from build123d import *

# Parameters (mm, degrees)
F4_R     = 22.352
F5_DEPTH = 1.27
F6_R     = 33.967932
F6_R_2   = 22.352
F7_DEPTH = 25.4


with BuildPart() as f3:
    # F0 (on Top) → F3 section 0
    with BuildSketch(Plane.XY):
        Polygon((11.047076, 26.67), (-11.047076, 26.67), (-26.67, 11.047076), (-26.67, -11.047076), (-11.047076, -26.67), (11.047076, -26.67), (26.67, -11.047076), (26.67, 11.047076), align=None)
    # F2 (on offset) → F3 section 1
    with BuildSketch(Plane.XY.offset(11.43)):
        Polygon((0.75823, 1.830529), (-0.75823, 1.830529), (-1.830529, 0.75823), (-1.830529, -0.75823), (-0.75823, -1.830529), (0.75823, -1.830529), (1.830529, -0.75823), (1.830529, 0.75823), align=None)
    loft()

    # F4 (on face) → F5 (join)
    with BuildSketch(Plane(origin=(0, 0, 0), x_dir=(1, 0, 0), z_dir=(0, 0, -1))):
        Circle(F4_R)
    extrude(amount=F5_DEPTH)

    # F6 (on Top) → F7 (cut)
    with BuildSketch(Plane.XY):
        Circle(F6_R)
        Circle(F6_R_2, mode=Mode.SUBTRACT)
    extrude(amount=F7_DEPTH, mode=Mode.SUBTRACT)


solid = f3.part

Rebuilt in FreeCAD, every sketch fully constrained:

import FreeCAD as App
import Part
import Sketcher
Q = App.Units.Quantity


def add_polygon(sketch, points):
    """Adds a closed chain of lines whose ends are joined by coincident constraints."""
    first, n = sketch.GeometryCount, len(points)
    for a, b in zip(points, points[1:] + points[:1]):
        sketch.addGeometry(Part.LineSegment(App.Vector(*a, 0), App.Vector(*b, 0)), False)
    for i in range(n):
        sketch.addConstraint(Sketcher.Constraint("Coincident", first + i, 2, first + (i + 1) % n, 1))

doc = App.newDocument("Part")
body = doc.addObject("PartDesign::Body", "Body")

sketch1 = body.newObject("Sketcher::SketchObject", "Sketch")
sketch1.AttachmentSupport = (doc.getObject("XY_Plane"), [""])
sketch1.MapMode = "FlatFace"
add_polygon(sketch1, [(11.047076, 26.67), (-11.047076, 26.67), (-26.67, 11.047076), (-26.67, -11.047076), (-11.047076, -26.67), (11.047076, -26.67), (26.67, -11.047076), (26.67, 11.047076)])
sketch1.addConstraint(Sketcher.Constraint("Horizontal", 0))
sketch1.addConstraint(Sketcher.Constraint("Vertical", 2))
sketch1.addConstraint(Sketcher.Constraint("Horizontal", 4))
sketch1.addConstraint(Sketcher.Constraint("Vertical", 6))
sketch1.addConstraint(Sketcher.Constraint("Symmetric", 0, 2, 4, 2, -1, 1))
sketch1.addConstraint(Sketcher.Constraint("Symmetric", 1, 2, 5, 2, -1, 1))
sketch1.addConstraint(Sketcher.Constraint("Perpendicular", 1, 3))
sketch1.addConstraint(Sketcher.Constraint("Perpendicular", 5, 7))
sketch1.addConstraint(Sketcher.Constraint("Horizontal", 2, 2, 5, 2))
sketch1.addConstraint(Sketcher.Constraint("Horizontal", 1, 2, 6, 2))
sketch1.addConstraint(Sketcher.Constraint("Vertical", 0, 2, 3, 2))
sketch1.addConstraint(Sketcher.Constraint("Equal", 4, 2))
sketch1.addConstraint(Sketcher.Constraint("DistanceY", 3, 2, 0, 2, Q("2.1 in")))
sketch1.addConstraint(Sketcher.Constraint("Distance", 1, Q("22.094151 mm")))

sketch2 = body.newObject("Sketcher::SketchObject", "Sketch001")
sketch2.AttachmentSupport = (doc.getObject("XY_Plane"), [""])
sketch2.MapMode = "FlatFace"
sketch2.AttachmentOffset = App.Placement(App.Vector(0, 0, 0.45 * 25.4), App.Rotation())
add_polygon(sketch2, [(0.75823, 1.830529), (-0.75823, 1.830529), (-1.830529, 0.75823), (-1.830529, -0.75823), (-0.75823, -1.830529), (0.75823, -1.830529), (1.830529, -0.75823), (1.830529, 0.75823)])
sketch2.addConstraint(Sketcher.Constraint("Horizontal", 0))
sketch2.addConstraint(Sketcher.Constraint("Vertical", 2))
sketch2.addConstraint(Sketcher.Constraint("Horizontal", 4))
sketch2.addConstraint(Sketcher.Constraint("Vertical", 6))
sketch2.addConstraint(Sketcher.Constraint("Symmetric", 0, 2, 4, 2, -1, 1))
sketch2.addConstraint(Sketcher.Constraint("Symmetric", 1, 2, 5, 2, -1, 1))
sketch2.addConstraint(Sketcher.Constraint("Perpendicular", 1, 3))
sketch2.addConstraint(Sketcher.Constraint("Perpendicular", 5, 7))
sketch2.addConstraint(Sketcher.Constraint("Horizontal", 2, 2, 5, 2))
sketch2.addConstraint(Sketcher.Constraint("Horizontal", 1, 2, 6, 2))
sketch2.addConstraint(Sketcher.Constraint("Vertical", 0, 2, 3, 2))
sketch2.addConstraint(Sketcher.Constraint("Equal", 4, 2))
sketch2.addConstraint(Sketcher.Constraint("DistanceX", 0, 2, 0, 1, Q("1.51646 mm")))
sketch2.addConstraint(Sketcher.Constraint("DistanceX", 1, 2, 0, 2, Q("1.072299 mm")))

additiveloft = body.newObject("PartDesign::AdditiveLoft", "AdditiveLoft")
additiveloft.Profile = sketch1
additiveloft.Sections = [sketch2]

sketch3 = body.newObject("Sketcher::SketchObject", "Sketch002")
sketch3.AttachmentSupport = (doc.getObject("XY_Plane"), [""])
sketch3.MapMode = "FlatFace"
sketch3.addGeometry(Part.Circle(App.Vector(0, 0, 0), App.Vector(0, 0, 1), 22.352), False)
sketch3.addConstraint(Sketcher.Constraint("Coincident", 0, 3, -1, 1))
sketch3.addConstraint(Sketcher.Constraint("Diameter", 0, Q("1.76 in")))
pad1 = body.newObject("PartDesign::Pad", "Pad")
pad1.Profile = sketch3
pad1.Length = Q("0.05 in")
pad1.Reversed = True

sketch4 = body.newObject("Sketcher::SketchObject", "Sketch003")
sketch4.AttachmentSupport = (doc.getObject("XY_Plane"), [""])
sketch4.MapMode = "FlatFace"
sketch4.addGeometry(Part.Circle(App.Vector(0, 0, 0), App.Vector(0, 0, 1), 33.967932), False)
sketch4.addGeometry(Part.Circle(App.Vector(0, 0, 0), App.Vector(0, 0, 1), 22.352), False)
sketch4.addConstraint(Sketcher.Constraint("Coincident", 0, 3, -1, 1))
sketch4.addConstraint(Sketcher.Constraint("Coincident", 1, 3, -1, 1))
sketch4.addConstraint(Sketcher.Constraint("Diameter", 1, Q("1.76 in")))
sketch4.addConstraint(Sketcher.Constraint("Diameter", 0, Q("67.935864 mm")))
pocket1 = body.newObject("PartDesign::Pocket", "Pocket")
pocket1.Profile = sketch4
pocket1.Length = Q("1 in")
pocket1.Reversed = True

doc.recompute()
